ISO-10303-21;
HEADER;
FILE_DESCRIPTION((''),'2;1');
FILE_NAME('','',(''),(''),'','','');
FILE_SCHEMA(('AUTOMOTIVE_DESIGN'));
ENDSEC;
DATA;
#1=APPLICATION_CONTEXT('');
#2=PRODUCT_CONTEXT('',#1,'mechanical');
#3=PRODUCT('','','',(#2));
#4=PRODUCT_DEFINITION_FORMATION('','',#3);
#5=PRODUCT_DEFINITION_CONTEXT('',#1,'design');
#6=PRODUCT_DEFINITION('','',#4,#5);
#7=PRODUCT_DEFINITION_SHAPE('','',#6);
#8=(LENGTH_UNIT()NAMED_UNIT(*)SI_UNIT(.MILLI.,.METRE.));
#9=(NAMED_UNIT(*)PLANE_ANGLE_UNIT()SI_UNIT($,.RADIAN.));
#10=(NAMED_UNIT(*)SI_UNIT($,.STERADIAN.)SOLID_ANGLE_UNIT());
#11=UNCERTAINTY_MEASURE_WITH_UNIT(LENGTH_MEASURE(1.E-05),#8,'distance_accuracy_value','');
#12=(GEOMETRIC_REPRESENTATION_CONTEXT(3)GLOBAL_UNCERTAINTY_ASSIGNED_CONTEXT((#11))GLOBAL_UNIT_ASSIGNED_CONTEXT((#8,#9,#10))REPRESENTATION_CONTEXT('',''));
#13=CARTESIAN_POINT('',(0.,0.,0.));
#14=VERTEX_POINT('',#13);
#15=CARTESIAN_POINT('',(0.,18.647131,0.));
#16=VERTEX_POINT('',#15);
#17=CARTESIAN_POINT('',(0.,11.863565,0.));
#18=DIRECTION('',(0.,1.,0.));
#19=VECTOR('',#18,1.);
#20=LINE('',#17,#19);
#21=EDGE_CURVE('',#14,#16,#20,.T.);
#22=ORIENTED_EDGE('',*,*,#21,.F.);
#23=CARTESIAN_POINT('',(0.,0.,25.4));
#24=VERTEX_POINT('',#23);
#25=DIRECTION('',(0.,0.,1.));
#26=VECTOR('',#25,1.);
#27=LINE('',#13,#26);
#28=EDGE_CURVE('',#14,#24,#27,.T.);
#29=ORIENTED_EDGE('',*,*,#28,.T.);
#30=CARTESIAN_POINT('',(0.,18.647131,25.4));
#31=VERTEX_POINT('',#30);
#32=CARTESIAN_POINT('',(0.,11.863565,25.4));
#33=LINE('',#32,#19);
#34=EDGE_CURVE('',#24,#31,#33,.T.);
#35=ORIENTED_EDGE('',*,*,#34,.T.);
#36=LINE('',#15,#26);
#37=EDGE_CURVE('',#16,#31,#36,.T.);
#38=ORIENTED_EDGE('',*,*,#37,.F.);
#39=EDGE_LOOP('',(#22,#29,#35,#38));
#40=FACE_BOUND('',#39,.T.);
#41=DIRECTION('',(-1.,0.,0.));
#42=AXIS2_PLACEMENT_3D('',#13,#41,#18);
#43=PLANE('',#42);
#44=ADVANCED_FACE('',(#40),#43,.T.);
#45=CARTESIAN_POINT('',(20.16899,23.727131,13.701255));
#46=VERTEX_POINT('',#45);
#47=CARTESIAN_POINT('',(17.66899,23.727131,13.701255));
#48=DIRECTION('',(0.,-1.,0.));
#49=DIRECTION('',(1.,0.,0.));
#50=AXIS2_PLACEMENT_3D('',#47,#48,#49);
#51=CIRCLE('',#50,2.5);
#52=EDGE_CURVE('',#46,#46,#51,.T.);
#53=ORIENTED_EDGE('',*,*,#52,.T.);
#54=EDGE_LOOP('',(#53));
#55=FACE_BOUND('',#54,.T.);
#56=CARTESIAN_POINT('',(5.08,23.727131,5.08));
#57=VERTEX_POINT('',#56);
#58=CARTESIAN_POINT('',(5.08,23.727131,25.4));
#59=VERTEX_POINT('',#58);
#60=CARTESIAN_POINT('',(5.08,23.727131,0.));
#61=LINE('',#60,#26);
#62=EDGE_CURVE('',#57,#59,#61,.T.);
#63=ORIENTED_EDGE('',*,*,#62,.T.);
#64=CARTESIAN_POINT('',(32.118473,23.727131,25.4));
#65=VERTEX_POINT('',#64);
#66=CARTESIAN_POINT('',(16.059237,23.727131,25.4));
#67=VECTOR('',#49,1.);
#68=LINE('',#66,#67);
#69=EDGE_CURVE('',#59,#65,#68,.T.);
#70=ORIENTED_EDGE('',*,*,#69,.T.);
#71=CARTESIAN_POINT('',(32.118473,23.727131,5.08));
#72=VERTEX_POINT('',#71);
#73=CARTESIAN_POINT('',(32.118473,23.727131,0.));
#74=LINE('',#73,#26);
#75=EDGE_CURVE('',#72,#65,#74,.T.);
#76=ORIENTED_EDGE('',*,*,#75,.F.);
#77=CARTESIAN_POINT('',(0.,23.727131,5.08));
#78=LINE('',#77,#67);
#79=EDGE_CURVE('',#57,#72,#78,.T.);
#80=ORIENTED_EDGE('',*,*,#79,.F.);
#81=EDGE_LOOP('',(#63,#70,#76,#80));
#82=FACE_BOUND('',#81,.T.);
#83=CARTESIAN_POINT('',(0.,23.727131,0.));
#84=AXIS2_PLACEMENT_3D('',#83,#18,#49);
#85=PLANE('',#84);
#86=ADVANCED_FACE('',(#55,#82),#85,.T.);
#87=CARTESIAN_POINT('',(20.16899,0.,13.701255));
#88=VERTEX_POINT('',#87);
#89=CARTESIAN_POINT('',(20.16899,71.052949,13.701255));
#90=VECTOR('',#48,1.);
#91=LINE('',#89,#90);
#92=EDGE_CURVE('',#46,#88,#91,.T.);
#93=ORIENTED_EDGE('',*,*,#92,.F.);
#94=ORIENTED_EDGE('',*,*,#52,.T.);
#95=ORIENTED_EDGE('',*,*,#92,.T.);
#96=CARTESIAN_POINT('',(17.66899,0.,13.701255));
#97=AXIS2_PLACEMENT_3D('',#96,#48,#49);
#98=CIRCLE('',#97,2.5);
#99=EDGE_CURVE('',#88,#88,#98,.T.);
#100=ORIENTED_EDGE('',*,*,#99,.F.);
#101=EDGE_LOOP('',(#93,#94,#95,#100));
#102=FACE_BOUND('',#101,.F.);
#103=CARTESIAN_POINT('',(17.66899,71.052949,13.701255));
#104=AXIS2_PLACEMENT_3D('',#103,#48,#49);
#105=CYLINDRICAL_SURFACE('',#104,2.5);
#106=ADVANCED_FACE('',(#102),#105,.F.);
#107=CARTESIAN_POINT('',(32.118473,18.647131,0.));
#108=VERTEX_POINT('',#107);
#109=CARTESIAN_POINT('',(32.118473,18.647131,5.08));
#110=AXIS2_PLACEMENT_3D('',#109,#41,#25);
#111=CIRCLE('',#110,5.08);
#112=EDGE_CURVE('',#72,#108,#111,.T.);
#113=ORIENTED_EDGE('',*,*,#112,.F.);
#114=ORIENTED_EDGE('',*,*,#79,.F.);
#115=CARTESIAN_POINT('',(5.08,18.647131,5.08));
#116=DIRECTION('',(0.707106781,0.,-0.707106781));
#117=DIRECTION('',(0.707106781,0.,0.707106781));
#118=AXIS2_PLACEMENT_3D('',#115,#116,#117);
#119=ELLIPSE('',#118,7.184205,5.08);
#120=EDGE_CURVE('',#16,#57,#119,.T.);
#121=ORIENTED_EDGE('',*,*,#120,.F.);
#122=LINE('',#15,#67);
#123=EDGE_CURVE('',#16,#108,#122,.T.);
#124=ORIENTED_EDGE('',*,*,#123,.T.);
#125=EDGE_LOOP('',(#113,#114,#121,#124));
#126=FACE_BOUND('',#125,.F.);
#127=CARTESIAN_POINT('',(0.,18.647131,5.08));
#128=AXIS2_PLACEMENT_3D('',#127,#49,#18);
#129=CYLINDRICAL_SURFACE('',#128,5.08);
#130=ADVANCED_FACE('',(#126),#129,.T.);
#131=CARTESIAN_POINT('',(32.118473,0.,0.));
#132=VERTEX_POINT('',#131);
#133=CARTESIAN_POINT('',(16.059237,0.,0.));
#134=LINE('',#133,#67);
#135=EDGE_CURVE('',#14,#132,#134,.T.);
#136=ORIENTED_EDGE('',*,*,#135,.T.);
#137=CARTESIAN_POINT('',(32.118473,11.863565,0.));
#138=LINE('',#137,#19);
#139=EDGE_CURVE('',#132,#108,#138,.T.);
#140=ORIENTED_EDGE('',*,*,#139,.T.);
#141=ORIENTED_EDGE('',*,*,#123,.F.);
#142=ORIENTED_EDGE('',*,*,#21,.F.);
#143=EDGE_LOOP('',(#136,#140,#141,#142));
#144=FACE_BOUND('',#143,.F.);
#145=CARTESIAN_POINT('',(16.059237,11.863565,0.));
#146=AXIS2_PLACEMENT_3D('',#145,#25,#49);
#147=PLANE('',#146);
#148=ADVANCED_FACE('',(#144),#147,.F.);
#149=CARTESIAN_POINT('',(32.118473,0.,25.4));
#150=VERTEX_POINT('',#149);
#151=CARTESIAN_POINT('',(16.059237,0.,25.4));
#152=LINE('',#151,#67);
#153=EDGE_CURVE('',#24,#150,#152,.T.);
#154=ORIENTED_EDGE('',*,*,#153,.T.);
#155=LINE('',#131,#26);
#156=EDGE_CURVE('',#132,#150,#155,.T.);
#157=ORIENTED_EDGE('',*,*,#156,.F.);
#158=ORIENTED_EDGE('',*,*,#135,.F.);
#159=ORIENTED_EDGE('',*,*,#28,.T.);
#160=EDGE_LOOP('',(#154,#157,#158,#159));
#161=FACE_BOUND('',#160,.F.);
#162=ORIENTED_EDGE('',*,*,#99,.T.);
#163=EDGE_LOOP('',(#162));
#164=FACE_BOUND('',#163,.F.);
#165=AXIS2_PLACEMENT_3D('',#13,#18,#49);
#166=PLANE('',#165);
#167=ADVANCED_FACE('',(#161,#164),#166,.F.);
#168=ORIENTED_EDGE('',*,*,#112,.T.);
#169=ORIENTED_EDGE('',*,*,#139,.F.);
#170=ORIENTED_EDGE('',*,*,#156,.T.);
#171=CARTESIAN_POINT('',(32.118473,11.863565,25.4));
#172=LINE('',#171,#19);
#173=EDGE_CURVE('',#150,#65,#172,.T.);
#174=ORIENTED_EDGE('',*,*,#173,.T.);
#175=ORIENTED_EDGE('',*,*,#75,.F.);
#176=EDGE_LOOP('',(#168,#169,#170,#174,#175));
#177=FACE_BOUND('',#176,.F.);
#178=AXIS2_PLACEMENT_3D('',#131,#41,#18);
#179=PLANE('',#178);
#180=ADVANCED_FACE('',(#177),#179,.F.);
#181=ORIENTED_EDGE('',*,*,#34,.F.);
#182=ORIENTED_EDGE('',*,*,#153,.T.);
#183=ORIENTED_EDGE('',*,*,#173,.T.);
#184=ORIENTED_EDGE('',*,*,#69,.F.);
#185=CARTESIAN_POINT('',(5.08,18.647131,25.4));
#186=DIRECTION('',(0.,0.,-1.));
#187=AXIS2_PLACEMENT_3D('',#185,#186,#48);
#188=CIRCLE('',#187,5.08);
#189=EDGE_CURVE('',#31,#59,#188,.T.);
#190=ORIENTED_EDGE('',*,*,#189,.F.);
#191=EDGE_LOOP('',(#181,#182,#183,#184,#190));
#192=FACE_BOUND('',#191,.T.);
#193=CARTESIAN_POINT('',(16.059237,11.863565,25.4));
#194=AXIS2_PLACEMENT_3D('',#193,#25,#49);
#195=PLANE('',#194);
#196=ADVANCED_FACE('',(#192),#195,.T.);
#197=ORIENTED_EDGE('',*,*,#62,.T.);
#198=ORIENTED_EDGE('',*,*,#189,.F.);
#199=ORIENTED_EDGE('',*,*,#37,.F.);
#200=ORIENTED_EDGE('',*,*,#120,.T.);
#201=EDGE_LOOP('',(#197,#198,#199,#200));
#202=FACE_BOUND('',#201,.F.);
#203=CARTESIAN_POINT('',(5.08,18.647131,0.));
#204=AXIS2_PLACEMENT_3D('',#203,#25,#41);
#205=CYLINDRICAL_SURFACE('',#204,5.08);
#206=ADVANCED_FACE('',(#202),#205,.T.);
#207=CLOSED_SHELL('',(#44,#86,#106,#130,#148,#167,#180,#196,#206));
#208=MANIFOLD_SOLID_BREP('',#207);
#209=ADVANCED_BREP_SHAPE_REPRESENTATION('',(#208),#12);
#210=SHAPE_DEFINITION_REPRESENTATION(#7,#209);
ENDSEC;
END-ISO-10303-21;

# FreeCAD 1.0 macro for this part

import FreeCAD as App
import Part
import Sketcher

V = App.Vector
Q = App.Units.Quantity


def edges_at(feature, points):
    """Names of the edges that pass closest to the given points."""
    edges = feature.Shape.Edges
    near = lambda p: min(range(len(edges)), key=lambda i: edges[i].distToShape(Part.Vertex(*p))[0])
    return sorted({f"Edge{near(p) + 1}" for p in points})


def add_polygon(sketch, points):
    """Adds a closed chain of lines whose ends are joined by coincident constraints."""
    first, n = sketch.GeometryCount, len(points)
    for a, b in zip(points, points[1:] + points[:1]):
        sketch.addGeometry(Part.LineSegment(App.Vector(*a, 0), App.Vector(*b, 0)), False)
    for i in range(n):
        sketch.addConstraint(Sketcher.Constraint("Coincident", first + i, 2, first + (i + 1) % n, 1))

doc = App.newDocument("Part")
body = doc.addObject("PartDesign::Body", "Body")

# Sketch on XY plane
sketch1 = body.newObject("Sketcher::SketchObject", "Sketch")
sketch1.AttachmentSupport = (doc.getObject("XY_Plane"), [""])
sketch1.MapMode = "FlatFace"
add_polygon(sketch1, [(0, 23.727131), (0, 0), (32.118473, 0), (32.118473, 23.727131)])  # lines 0-3
sketch1.addConstraint([
    Sketcher.Constraint("Vertical", 0),
    Sketcher.Constraint("Horizontal", 1),
    Sketcher.Constraint("Vertical", 2),
    Sketcher.Constraint("Horizontal", 3),
    Sketcher.Constraint("Coincident", 0, 2, -1, 1),
    Sketcher.Constraint("DistanceY", 0, 2, 0, 1, Q("23.727131 mm")),
    Sketcher.Constraint("DistanceX", 1, 1, 1, 2, Q("32.118473 mm")),
])
pad1 = body.newObject("PartDesign::Pad", "Pad")
pad1.Profile = sketch1
pad1.Length = Q("1 in")
doc.recompute()

fillet = body.newObject("PartDesign::Fillet", "Fillet")
fillet.Base = (pad1, edges_at(pad1, [(0, 23.727, 12.7), (16.059, 23.727, 0)]))
fillet.Radius = Q("0.2 in")

# Sketch on XZ plane
sketch2 = body.newObject("Sketcher::SketchObject", "Sketch001")
sketch2.AttachmentSupport = (doc.getObject("XZ_Plane"), [""])
sketch2.MapMode = "FlatFace"
sketch2.AttachmentOffset = App.Placement(V(0, 0, -23.727131), App.Rotation())
sketch2.addGeometry(Part.Circle(V(17.66899, 13.701255, 0), V(0, 0, 1), 2.5), False)
sketch2.addConstraint([
    Sketcher.Constraint("Diameter", 0, Q("5 mm")),
    Sketcher.Constraint("DistanceX", -1, 1, 0, 3, Q("17.66899 mm")),
    Sketcher.Constraint("DistanceY", -1, 1, 0, 3, Q("13.701255 mm")),
])
doc.recompute()
hole = body.newObject("PartDesign::Hole", "Hole")
hole.Profile = sketch2
hole.ThreadType = "None"
hole.Diameter = 5
hole.DepthType = "ThroughAll"
hole.Reversed = True

doc.recompute()
